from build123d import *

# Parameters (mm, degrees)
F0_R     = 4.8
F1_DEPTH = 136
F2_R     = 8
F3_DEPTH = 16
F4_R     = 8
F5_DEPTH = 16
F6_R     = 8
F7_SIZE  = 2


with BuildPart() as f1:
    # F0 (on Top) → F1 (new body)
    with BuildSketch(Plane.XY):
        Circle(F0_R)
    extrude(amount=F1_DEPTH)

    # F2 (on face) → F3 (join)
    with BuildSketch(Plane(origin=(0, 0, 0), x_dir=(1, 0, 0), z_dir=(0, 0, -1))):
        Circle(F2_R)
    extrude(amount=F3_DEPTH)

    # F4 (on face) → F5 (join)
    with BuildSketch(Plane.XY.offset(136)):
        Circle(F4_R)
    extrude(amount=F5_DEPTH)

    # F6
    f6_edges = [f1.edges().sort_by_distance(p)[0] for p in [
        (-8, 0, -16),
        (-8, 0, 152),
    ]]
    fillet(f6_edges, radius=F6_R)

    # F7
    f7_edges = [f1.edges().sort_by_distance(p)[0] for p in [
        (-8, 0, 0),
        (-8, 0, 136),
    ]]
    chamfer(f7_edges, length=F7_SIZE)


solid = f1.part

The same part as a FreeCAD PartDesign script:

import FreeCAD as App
import Part
import Sketcher

V = App.Vector


def edges_at(feature, points):
    """Names of the edges that pass closest to the given points."""
    edges = feature.Shape.Edges
    near = lambda p: min(range(len(edges)), key=lambda i: edges[i].distToShape(Part.Vertex(*p))[0])
    return sorted({f"Edge{near(p) + 1}" for p in points})

doc = App.newDocument("Part")
body = doc.addObject("PartDesign::Body", "Body")

sketch1 = body.newObject("Sketcher::SketchObject", "Sketch")
sketch1.AttachmentSupport = (doc.getObject("XY_Plane"), [""])
sketch1.MapMode = "FlatFace"
sketch1.addGeometry(Part.Circle(V(0, 0, 0), V(0, 0, 1), 4.8), False)
sketch1.addConstraint(Sketcher.Constraint("Coincident", 0, 3, -1, 1))
sketch1.addConstraint(Sketcher.Constraint("Diameter", 0, 9.6))
pad1 = body.newObject("PartDesign::Pad", "Pad")
pad1.Profile = sketch1
pad1.Length = 136

sketch2 = body.newObject("Sketcher::SketchObject", "Sketch001")
sketch2.AttachmentSupport = (doc.getObject("XY_Plane"), [""])
sketch2.MapMode = "FlatFace"
sketch2.addGeometry(Part.Circle(V(0, 0, 0), V(0, 0, 1), 8), False)
sketch2.addConstraint(Sketcher.Constraint("Coincident", 0, 3, -1, 1))
sketch2.addConstraint(Sketcher.Constraint("Diameter", 0, 16.0))
pad2 = body.newObject("PartDesign::Pad", "Pad001")
pad2.Profile = sketch2
pad2.Length = 16
pad2.Reversed = True

sketch3 = body.newObject("Sketcher::SketchObject", "Sketch002")
sketch3.AttachmentSupport = (doc.getObject("XY_Plane"), [""])
sketch3.MapMode = "FlatFace"
sketch3.AttachmentOffset = App.Placement(V(0, 0, 136), App.Rotation())
sketch3.addGeometry(Part.Circle(V(0, 0, 0), V(0, 0, 1), 8), False)
sketch3.addConstraint(Sketcher.Constraint("Coincident", 0, 3, -1, 1))
sketch3.addConstraint(Sketcher.Constraint("Diameter", 0, 16.0))
pad3 = body.newObject("PartDesign::Pad", "Pad002")
pad3.Profile = sketch3
pad3.Length = 16
doc.recompute()

fillet = body.newObject("PartDesign::Fillet", "Fillet")
fillet.Base = (pad3, edges_at(pad3, [(-8, 0, -16), (-8, 0, 152)]))
fillet.Radius = 8
doc.recompute()

chamfer = body.newObject("PartDesign::Chamfer", "Chamfer")
chamfer.Base = (fillet, edges_at(fillet, [(-8, 0, 0), (-8, 0, 136)]))
chamfer.Size = 2

doc.recompute()
